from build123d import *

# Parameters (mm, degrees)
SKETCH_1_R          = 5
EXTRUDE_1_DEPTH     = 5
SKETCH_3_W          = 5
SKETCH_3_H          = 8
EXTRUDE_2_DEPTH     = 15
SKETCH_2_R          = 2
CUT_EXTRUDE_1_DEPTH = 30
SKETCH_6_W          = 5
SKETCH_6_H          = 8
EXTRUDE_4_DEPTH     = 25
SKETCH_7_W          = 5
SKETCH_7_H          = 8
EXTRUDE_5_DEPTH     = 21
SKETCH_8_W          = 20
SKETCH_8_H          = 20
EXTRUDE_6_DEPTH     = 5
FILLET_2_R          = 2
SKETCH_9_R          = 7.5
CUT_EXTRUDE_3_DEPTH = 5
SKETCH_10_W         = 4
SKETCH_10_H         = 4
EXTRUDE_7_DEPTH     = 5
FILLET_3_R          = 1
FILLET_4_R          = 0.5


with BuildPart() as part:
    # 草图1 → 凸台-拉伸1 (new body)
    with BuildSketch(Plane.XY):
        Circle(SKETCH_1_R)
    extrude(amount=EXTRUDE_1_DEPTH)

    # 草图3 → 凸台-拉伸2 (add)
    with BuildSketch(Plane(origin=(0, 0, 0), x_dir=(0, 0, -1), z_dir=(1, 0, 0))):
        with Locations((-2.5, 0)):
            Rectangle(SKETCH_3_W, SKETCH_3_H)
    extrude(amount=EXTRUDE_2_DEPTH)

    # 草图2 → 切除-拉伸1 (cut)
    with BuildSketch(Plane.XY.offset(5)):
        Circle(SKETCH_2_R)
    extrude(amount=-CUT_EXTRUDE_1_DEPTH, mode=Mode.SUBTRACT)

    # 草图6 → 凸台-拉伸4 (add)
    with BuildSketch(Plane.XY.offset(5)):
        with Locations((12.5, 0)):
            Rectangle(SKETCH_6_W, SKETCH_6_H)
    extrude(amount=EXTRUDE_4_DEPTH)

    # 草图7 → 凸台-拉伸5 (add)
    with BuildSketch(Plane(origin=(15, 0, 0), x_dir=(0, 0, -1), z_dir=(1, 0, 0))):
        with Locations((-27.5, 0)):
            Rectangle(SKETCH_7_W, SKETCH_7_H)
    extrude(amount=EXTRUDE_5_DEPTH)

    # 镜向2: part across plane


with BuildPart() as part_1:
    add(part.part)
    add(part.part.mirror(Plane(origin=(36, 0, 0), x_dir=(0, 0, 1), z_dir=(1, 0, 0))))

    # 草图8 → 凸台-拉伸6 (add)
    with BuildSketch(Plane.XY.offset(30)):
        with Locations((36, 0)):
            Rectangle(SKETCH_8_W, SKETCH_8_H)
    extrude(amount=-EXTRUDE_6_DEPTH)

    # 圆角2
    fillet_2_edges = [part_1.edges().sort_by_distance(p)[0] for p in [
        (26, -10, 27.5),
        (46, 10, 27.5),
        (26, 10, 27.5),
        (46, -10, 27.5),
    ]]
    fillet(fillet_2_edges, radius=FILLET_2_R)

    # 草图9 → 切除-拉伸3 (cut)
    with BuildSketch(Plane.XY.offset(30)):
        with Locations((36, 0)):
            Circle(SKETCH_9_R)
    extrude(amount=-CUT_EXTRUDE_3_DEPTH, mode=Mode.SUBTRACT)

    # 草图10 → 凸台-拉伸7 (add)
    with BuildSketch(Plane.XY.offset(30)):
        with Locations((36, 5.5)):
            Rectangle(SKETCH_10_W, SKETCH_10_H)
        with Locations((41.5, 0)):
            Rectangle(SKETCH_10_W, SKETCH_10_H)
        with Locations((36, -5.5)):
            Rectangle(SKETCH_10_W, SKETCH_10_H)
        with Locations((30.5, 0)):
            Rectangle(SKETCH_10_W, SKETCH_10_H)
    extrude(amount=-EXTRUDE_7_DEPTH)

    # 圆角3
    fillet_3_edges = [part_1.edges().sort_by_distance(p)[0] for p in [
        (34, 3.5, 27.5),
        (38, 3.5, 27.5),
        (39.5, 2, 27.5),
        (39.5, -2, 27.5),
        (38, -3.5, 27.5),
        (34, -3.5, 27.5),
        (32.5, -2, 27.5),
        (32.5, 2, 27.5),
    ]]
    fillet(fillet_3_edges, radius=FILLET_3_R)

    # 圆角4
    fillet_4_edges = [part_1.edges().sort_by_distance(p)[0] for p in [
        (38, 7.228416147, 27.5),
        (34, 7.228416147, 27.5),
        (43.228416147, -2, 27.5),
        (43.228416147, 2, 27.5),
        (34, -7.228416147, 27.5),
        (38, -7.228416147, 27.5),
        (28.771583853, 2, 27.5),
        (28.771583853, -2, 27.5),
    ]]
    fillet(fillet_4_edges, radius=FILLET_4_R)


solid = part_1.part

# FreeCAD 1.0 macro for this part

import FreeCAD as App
import Part
import Sketcher
from FreeCAD import Vector


def edges_at(feature, points):
    """Names of the edges that pass closest to the given points."""
    edges = feature.Shape.Edges
    near = lambda p: min(range(len(edges)), key=lambda i: edges[i].distToShape(Part.Vertex(*p))[0])
    return sorted({f"Edge{near(p) + 1}" for p in points})

doc = App.newDocument("Part")
body = doc.addObject("PartDesign::Body", "Body")

# Sketch on XY plane
sketch1 = body.newObject("Sketcher::SketchObject", "Sketch")
sketch1.AttachmentSupport = (doc.getObject("XY_Plane"), [""])
sketch1.MapMode = "FlatFace"
sketch1.addGeometry(Part.Circle(Vector(0, 0, 0), Vector(0, 0, 1), 5), False)
sketch1.addConstraint([
    Sketcher.Constraint("Coincident", 0, 3, -1, 1),
    Sketcher.Constraint("Diameter", 0, 10.0),
])
pad1 = body.newObject("PartDesign::Pad", "Pad")
pad1.Profile = sketch1
pad1.Length = 5

# Sketch on YZ plane
sketch2 = body.newObject("Sketcher::SketchObject", "Sketch001")
sketch2.AttachmentSupport = (doc.getObject("YZ_Plane"), [""])
sketch2.MapMode = "FlatFace"
sketch2.addGeometry([
    Part.LineSegment(Vector(4, 5, 0), Vector(-4, 5, 0)),
    Part.LineSegment(Vector(-4, 5, 0), Vector(-4, 0, 0)),
    Part.LineSegment(Vector(-4, 0, 0), Vector(4, 0, 0)),
    Part.LineSegment(Vector(4, 0, 0), Vector(4, 5, 0)),
], False)
sketch2.addConstraint([
    Sketcher.Constraint("Coincident", 0, 2, 1, 1),
    Sketcher.Constraint("Coincident", 1, 2, 2, 1),
    Sketcher.Constraint("Coincident", 2, 2, 3, 1),
    Sketcher.Constraint("Coincident", 3, 2, 0, 1),
    Sketcher.Constraint("Horizontal", 0),
    Sketcher.Constraint("Vertical", 1),
    Sketcher.Constraint("Horizontal", 2),
    Sketcher.Constraint("Vertical", 3),
    Sketcher.Constraint("Symmetric", 1, 2, 2, 2, -1, 1),
    Sketcher.Constraint("DistanceX", 0, 2, 0, 1, 8.0),
    Sketcher.Constraint("DistanceY", 1, 2, 1, 1, 5.0),
])
pad2 = body.newObject("PartDesign::Pad", "Pad001")
pad2.Profile = sketch2
pad2.Length = 15

# Sketch on XY plane
sketch3 = body.newObject("Sketcher::SketchObject", "Sketch002")
sketch3.AttachmentSupport = (doc.getObject("XY_Plane"), [""])
sketch3.MapMode = "FlatFace"
sketch3.AttachmentOffset = App.Placement(Vector(0, 0, 5), App.Rotation())
sketch3.addGeometry(Part.Circle(Vector(0, 0, 0), Vector(0, 0, 1), 2), False)
sketch3.addConstraint([
    Sketcher.Constraint("Coincident", 0, 3, -1, 1),
    Sketcher.Constraint("Diameter", 0, 4.0),
])
pocket1 = body.newObject("PartDesign::Pocket", "Pocket")
pocket1.Profile = sketch3
pocket1.Length = 30

# Sketch on XY plane
sketch4 = body.newObject("Sketcher::SketchObject", "Sketch003")
sketch4.AttachmentSupport = (doc.getObject("XY_Plane"), [""])
sketch4.MapMode = "FlatFace"
sketch4.AttachmentOffset = App.Placement(Vector(0, 0, 5), App.Rotation())
sketch4.addGeometry([
    Part.LineSegment(Vector(10, 4, 0), Vector(10, -4, 0)),
    Part.LineSegment(Vector(10, -4, 0), Vector(15, -4, 0)),
    Part.LineSegment(Vector(15, -4, 0), Vector(15, 4, 0)),
    Part.LineSegment(Vector(15, 4, 0), Vector(10, 4, 0)),
], False)
sketch4.addConstraint([
    Sketcher.Constraint("Coincident", 0, 2, 1, 1),
    Sketcher.Constraint("Coincident", 1, 2, 2, 1),
    Sketcher.Constraint("Coincident", 2, 2, 3, 1),
    Sketcher.Constraint("Coincident", 3, 2, 0, 1),
    Sketcher.Constraint("Vertical", 0),
    Sketcher.Constraint("Horizontal", 1),
    Sketcher.Constraint("Vertical", 2),
    Sketcher.Constraint("Horizontal", 3),
    Sketcher.Constraint("DistanceX", 1, 1, 1, 2, 5.0),
    Sketcher.Constraint("DistanceY", 0, 2, 0, 1, 8.0),
    Sketcher.Constraint("DistanceX", -1, 1, 0, 2, 10.0),
    Sketcher.Constraint("DistanceY", 0, 2, -1, 1, 4.0),
])
pad3 = body.newObject("PartDesign::Pad", "Pad002")
pad3.Profile = sketch4
pad3.Length = 25

# Sketch on YZ plane
sketch5 = body.newObject("Sketcher::SketchObject", "Sketch004")
sketch5.AttachmentSupport = (doc.getObject("YZ_Plane"), [""])
sketch5.MapMode = "FlatFace"
sketch5.AttachmentOffset = App.Placement(Vector(0, 0, 15), App.Rotation())
sketch5.addGeometry([
    Part.LineSegment(Vector(4, 30, 0), Vector(-4, 30, 0)),
    Part.LineSegment(Vector(-4, 30, 0), Vector(-4, 25, 0)),
    Part.LineSegment(Vector(-4, 25, 0), Vector(4, 25, 0)),
    Part.LineSegment(Vector(4, 25, 0), Vector(4, 30, 0)),
], False)
sketch5.addConstraint([
    Sketcher.Constraint("Coincident", 0, 2, 1, 1),
    Sketcher.Constraint("Coincident", 1, 2, 2, 1),
    Sketcher.Constraint("Coincident", 2, 2, 3, 1),
    Sketcher.Constraint("Coincident", 3, 2, 0, 1),
    Sketcher.Constraint("Horizontal", 0),
    Sketcher.Constraint("Vertical", 1),
    Sketcher.Constraint("Horizontal", 2),
    Sketcher.Constraint("Vertical", 3),
    Sketcher.Constraint("DistanceX", 0, 2, 0, 1, 8.0),
    Sketcher.Constraint("DistanceY", 1, 2, 1, 1, 5.0),
    Sketcher.Constraint("DistanceX", 0, 2, -1, 1, 4.0),
    Sketcher.Constraint("DistanceY", -1, 1, 0, 2, 30.0),
])
pad4 = body.newObject("PartDesign::Pad", "Pad003")
pad4.Profile = sketch5
pad4.Length = 21
body2 = doc.addObject("PartDesign::Body", "Body001")
doc.recompute()

body2.BaseFeature = body
doc.recompute()

mirroring = doc.addObject("Part::Mirroring", "Mirroring")
mirroring.Source = body
mirroring.Base = Vector(36, 0, 0)
mirroring.Normal = Vector(1, 0, 0)
body3 = doc.addObject("PartDesign::Body", "Body002")
body3.BaseFeature = mirroring
boolean = body2.newObject("PartDesign::Boolean", "Boolean")
boolean.Type = "Fuse"
boolean.addObjects([body3])
doc.recompute()

# Sketch on XY plane
sketch6 = body2.newObject("Sketcher::SketchObject", "Sketch005")
sketch6.AttachmentSupport = (doc.getObject("XY_Plane001"), [""])
sketch6.MapMode = "FlatFace"
sketch6.AttachmentOffset = App.Placement(Vector(0, 0, 30), App.Rotation())
sketch6.addGeometry([
    Part.LineSegment(Vector(26, 10, 0), Vector(26, -10, 0)),
    Part.LineSegment(Vector(26, -10, 0), Vector(46, -10, 0)),
    Part.LineSegment(Vector(46, -10, 0), Vector(46, 10, 0)),
    Part.LineSegment(Vector(46, 10, 0), Vector(26, 10, 0)),
], False)
sketch6.addConstraint([
    Sketcher.Constraint("Coincident", 0, 2, 1, 1),
    Sketcher.Constraint("Coincident", 1, 2, 2, 1),
    Sketcher.Constraint("Coincident", 2, 2, 3, 1),
    Sketcher.Constraint("Coincident", 3, 2, 0, 1),
    Sketcher.Constraint("Vertical", 0),
    Sketcher.Constraint("Horizontal", 1),
    Sketcher.Constraint("Vertical", 2),
    Sketcher.Constraint("Horizontal", 3),
    Sketcher.Constraint("Equal", 3, 0),
    Sketcher.Constraint("DistanceX", 1, 1, 1, 2, 20.0),
    Sketcher.Constraint("DistanceX", -1, 1, 0, 2, 26.0),
    Sketcher.Constraint("DistanceY", 0, 2, -1, 1, 10.0),
])
pad5 = body2.newObject("PartDesign::Pad", "Pad004")
pad5.Profile = sketch6
pad5.Length = 5
pad5.Reversed = True
doc.recompute()

fillet = body2.newObject("PartDesign::Fillet", "Fillet")
fillet.Base = (pad5, edges_at(pad5, [
    (26, -10, 27.5),
    (46, 10, 27.5),
    (26, 10, 27.5),
    (46, -10, 27.5),
]))
fillet.Radius = 2

# Sketch on XY plane
sketch7 = body2.newObject("Sketcher::SketchObject", "Sketch006")
sketch7.AttachmentSupport = (doc.getObject("XY_Plane001"), [""])
sketch7.MapMode = "FlatFace"
sketch7.AttachmentOffset = App.Placement(Vector(0, 0, 30), App.Rotation())
sketch7.addGeometry(Part.Circle(Vector(36, 0, 0), Vector(0, 0, 1), 7.5), False)
sketch7.addConstraint([
    Sketcher.Constraint("PointOnObject", 0, 3, -1),
    Sketcher.Constraint("Diameter", 0, 15.0),
    Sketcher.Constraint("DistanceX", -1, 1, 0, 3, 36.0),
])
pocket2 = body2.newObject("PartDesign::Pocket", "Pocket001")
pocket2.Profile = sketch7
pocket2.Length = 5

# Sketch on XY plane
sketch8 = body2.newObject("Sketcher::SketchObject", "Sketch007")
sketch8.AttachmentSupport = (doc.getObject("XY_Plane001"), [""])
sketch8.MapMode = "FlatFace"
sketch8.AttachmentOffset = App.Placement(Vector(0, 0, 30), App.Rotation())
sketch8.addGeometry([
    Part.LineSegment(Vector(34, 7.5, 0), Vector(34, 3.5, 0)),  # 0
    Part.LineSegment(Vector(34, 3.5, 0), Vector(38, 3.5, 0)),  # 1
    Part.LineSegment(Vector(38, 3.5, 0), Vector(38, 7.5, 0)),  # 2
    Part.LineSegment(Vector(38, 7.5, 0), Vector(34, 7.5, 0)),  # 3
    Part.LineSegment(Vector(39.5, 2, 0), Vector(39.5, -2, 0)),  # 4
    Part.LineSegment(Vector(39.5, -2, 0), Vector(43.5, -2, 0)),  # 5
    Part.LineSegment(Vector(43.5, -2, 0), Vector(43.5, 2, 0)),  # 6
    Part.LineSegment(Vector(43.5, 2, 0), Vector(39.5, 2, 0)),  # 7
    Part.LineSegment(Vector(34, -3.5, 0), Vector(34, -7.5, 0)),  # 8
    Part.LineSegment(Vector(34, -7.5, 0), Vector(38, -7.5, 0)),  # 9
    Part.LineSegment(Vector(38, -7.5, 0), Vector(38, -3.5, 0)),  # 10
    Part.LineSegment(Vector(38, -3.5, 0), Vector(34, -3.5, 0)),  # 11
    Part.LineSegment(Vector(28.5, 2, 0), Vector(28.5, -2, 0)),  # 12
    Part.LineSegment(Vector(28.5, -2, 0), Vector(32.5, -2, 0)),  # 13
    Part.LineSegment(Vector(32.5, -2, 0), Vector(32.5, 2, 0)),  # 14
    Part.LineSegment(Vector(32.5, 2, 0), Vector(28.5, 2, 0)),  # 15
], False)
sketch8.addConstraint([
    Sketcher.Constraint("Coincident", 0, 2, 1, 1),
    Sketcher.Constraint("Coincident", 1, 2, 2, 1),
    Sketcher.Constraint("Coincident", 2, 2, 3, 1),
    Sketcher.Constraint("Coincident", 3, 2, 0, 1),
    Sketcher.Constraint("Coincident", 4, 2, 5, 1),
    Sketcher.Constraint("Coincident", 5, 2, 6, 1),
    Sketcher.Constraint("Coincident", 6, 2, 7, 1),
    Sketcher.Constraint("Coincident", 7, 2, 4, 1),
    Sketcher.Constraint("Coincident", 8, 2, 9, 1),
    Sketcher.Constraint("Coincident", 9, 2, 10, 1),
    Sketcher.Constraint("Coincident", 10, 2, 11, 1),
    Sketcher.Constraint("Coincident", 11, 2, 8, 1),
    Sketcher.Constraint("Coincident", 12, 2, 13, 1),
    Sketcher.Constraint("Coincident", 13, 2, 14, 1),
    Sketcher.Constraint("Coincident", 14, 2, 15, 1),
    Sketcher.Constraint("Coincident", 15, 2, 12, 1),
    Sketcher.Constraint("Vertical", 0),
    Sketcher.Constraint("Horizontal", 1),
    Sketcher.Constraint("Vertical", 2),
    Sketcher.Constraint("Horizontal", 3),
    Sketcher.Constraint("Vertical", 4),
    Sketcher.Constraint("Horizontal", 5),
    Sketcher.Constraint("Vertical", 6),
    Sketcher.Constraint("Horizontal", 7),
    Sketcher.Constraint("Vertical", 8),
    Sketcher.Constraint("Horizontal", 9),
    Sketcher.Constraint("Vertical", 10),
    Sketcher.Constraint("Horizontal", 11),
    Sketcher.Constraint("Vertical", 12),
    Sketcher.Constraint("Horizontal", 13),
    Sketcher.Constraint("Vertical", 14),
    Sketcher.Constraint("Horizontal", 15),
    Sketcher.Constraint("Symmetric", 3, 2, 8, 2, -1),
    Sketcher.Constraint("Symmetric", 1, 2, 10, 2, -1),
    Sketcher.Constraint("Horizontal", 5, 2, 12, 2),
    Sketcher.Constraint("Horizontal", 7, 2, 14, 2),
    Sketcher.Constraint("Equal", 3, 5),
    Sketcher.Constraint("Equal", 11, 13),
    Sketcher.Constraint("Equal", 15, 0),
    Sketcher.Constraint("Equal", 2, 4),
    Sketcher.Constraint("DistanceX", 1, 1, 1, 2, 4.0),
    Sketcher.Constraint("DistanceX", -1, 1, 0, 2, 34.0),
    Sketcher.Constraint("DistanceY", 4, 2, -1, 1, 2.0),
    Sketcher.Constraint("DistanceY", 8, 2, 0, 2, 11.0),
    Sketcher.Constraint("DistanceX", -1, 1, 4, 2, 39.5),
    Sketcher.Constraint("DistanceX", -1, 1, 12, 2, 28.5),
])
pad6 = body2.newObject("PartDesign::Pad", "Pad005")
pad6.Profile = sketch8
pad6.Length = 5
pad6.Reversed = True
doc.recompute()

fillet2 = body2.newObject("PartDesign::Fillet", "Fillet001")
fillet2.Base = (pad6, edges_at(pad6, [
    (34, 3.5, 27.5),
    (38, 3.5, 27.5),
    (39.5, 2, 27.5),
    (39.5, -2, 27.5),
    (38, -3.5, 27.5),
    (34, -3.5, 27.5),
    (32.5, -2, 27.5),
    (32.5, 2, 27.5),
]))
fillet2.Radius = 1
doc.recompute()

fillet3 = body2.newObject("PartDesign::Fillet", "Fillet002")
fillet3.Base = (fillet2, edges_at(fillet2, [
    (38, 7.228, 27.5),
    (34, 7.228, 27.5),
    (43.228, -2, 27.5),
    (43.228, 2, 27.5),
    (34, -7.228, 27.5),
    (38, -7.228, 27.5),
    (28.772, 2, 27.5),
    (28.772, -2, 27.5),
]))
fillet3.Radius = 0.5
mirroring.Visibility = False

doc.recompute()
